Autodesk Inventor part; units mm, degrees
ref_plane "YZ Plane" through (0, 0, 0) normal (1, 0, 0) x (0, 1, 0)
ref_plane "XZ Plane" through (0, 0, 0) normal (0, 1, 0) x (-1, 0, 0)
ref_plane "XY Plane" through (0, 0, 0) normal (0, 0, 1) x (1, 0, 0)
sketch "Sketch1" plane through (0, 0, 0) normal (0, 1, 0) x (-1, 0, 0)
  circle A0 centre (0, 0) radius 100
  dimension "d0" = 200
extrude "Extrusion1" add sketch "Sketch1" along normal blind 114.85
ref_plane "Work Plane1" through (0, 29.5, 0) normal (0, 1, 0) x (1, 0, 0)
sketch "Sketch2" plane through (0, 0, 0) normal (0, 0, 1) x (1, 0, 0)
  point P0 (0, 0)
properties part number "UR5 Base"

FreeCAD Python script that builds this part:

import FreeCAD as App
import Part
import Sketcher
from FreeCAD import Vector

doc = App.newDocument("Part")
body = doc.addObject("PartDesign::Body", "Body")

# Sketch on XZ plane
sketch1 = doc.addObject("Sketcher::SketchObject", "Sketch")
body.addObject(sketch1)
sketch1.AttachmentSupport = (doc.XZ_Plane, [""])
sketch1.MapMode = "FlatFace"
sketch1.addGeometry(Part.Circle(Vector(0, 0, 0), Vector(0, 0, 1), 100), False)
sketch1.addConstraint([
    Sketcher.Constraint("Coincident", 0, 3, -1, 1),
    Sketcher.Constraint("Diameter", 0, 200.0),
])
pad1 = doc.addObject("PartDesign::Pad", "Pad")
body.addObject(pad1)
pad1.Profile = sketch1
pad1.Length = 114.85
pad1.Reversed = True

doc.recompute()
